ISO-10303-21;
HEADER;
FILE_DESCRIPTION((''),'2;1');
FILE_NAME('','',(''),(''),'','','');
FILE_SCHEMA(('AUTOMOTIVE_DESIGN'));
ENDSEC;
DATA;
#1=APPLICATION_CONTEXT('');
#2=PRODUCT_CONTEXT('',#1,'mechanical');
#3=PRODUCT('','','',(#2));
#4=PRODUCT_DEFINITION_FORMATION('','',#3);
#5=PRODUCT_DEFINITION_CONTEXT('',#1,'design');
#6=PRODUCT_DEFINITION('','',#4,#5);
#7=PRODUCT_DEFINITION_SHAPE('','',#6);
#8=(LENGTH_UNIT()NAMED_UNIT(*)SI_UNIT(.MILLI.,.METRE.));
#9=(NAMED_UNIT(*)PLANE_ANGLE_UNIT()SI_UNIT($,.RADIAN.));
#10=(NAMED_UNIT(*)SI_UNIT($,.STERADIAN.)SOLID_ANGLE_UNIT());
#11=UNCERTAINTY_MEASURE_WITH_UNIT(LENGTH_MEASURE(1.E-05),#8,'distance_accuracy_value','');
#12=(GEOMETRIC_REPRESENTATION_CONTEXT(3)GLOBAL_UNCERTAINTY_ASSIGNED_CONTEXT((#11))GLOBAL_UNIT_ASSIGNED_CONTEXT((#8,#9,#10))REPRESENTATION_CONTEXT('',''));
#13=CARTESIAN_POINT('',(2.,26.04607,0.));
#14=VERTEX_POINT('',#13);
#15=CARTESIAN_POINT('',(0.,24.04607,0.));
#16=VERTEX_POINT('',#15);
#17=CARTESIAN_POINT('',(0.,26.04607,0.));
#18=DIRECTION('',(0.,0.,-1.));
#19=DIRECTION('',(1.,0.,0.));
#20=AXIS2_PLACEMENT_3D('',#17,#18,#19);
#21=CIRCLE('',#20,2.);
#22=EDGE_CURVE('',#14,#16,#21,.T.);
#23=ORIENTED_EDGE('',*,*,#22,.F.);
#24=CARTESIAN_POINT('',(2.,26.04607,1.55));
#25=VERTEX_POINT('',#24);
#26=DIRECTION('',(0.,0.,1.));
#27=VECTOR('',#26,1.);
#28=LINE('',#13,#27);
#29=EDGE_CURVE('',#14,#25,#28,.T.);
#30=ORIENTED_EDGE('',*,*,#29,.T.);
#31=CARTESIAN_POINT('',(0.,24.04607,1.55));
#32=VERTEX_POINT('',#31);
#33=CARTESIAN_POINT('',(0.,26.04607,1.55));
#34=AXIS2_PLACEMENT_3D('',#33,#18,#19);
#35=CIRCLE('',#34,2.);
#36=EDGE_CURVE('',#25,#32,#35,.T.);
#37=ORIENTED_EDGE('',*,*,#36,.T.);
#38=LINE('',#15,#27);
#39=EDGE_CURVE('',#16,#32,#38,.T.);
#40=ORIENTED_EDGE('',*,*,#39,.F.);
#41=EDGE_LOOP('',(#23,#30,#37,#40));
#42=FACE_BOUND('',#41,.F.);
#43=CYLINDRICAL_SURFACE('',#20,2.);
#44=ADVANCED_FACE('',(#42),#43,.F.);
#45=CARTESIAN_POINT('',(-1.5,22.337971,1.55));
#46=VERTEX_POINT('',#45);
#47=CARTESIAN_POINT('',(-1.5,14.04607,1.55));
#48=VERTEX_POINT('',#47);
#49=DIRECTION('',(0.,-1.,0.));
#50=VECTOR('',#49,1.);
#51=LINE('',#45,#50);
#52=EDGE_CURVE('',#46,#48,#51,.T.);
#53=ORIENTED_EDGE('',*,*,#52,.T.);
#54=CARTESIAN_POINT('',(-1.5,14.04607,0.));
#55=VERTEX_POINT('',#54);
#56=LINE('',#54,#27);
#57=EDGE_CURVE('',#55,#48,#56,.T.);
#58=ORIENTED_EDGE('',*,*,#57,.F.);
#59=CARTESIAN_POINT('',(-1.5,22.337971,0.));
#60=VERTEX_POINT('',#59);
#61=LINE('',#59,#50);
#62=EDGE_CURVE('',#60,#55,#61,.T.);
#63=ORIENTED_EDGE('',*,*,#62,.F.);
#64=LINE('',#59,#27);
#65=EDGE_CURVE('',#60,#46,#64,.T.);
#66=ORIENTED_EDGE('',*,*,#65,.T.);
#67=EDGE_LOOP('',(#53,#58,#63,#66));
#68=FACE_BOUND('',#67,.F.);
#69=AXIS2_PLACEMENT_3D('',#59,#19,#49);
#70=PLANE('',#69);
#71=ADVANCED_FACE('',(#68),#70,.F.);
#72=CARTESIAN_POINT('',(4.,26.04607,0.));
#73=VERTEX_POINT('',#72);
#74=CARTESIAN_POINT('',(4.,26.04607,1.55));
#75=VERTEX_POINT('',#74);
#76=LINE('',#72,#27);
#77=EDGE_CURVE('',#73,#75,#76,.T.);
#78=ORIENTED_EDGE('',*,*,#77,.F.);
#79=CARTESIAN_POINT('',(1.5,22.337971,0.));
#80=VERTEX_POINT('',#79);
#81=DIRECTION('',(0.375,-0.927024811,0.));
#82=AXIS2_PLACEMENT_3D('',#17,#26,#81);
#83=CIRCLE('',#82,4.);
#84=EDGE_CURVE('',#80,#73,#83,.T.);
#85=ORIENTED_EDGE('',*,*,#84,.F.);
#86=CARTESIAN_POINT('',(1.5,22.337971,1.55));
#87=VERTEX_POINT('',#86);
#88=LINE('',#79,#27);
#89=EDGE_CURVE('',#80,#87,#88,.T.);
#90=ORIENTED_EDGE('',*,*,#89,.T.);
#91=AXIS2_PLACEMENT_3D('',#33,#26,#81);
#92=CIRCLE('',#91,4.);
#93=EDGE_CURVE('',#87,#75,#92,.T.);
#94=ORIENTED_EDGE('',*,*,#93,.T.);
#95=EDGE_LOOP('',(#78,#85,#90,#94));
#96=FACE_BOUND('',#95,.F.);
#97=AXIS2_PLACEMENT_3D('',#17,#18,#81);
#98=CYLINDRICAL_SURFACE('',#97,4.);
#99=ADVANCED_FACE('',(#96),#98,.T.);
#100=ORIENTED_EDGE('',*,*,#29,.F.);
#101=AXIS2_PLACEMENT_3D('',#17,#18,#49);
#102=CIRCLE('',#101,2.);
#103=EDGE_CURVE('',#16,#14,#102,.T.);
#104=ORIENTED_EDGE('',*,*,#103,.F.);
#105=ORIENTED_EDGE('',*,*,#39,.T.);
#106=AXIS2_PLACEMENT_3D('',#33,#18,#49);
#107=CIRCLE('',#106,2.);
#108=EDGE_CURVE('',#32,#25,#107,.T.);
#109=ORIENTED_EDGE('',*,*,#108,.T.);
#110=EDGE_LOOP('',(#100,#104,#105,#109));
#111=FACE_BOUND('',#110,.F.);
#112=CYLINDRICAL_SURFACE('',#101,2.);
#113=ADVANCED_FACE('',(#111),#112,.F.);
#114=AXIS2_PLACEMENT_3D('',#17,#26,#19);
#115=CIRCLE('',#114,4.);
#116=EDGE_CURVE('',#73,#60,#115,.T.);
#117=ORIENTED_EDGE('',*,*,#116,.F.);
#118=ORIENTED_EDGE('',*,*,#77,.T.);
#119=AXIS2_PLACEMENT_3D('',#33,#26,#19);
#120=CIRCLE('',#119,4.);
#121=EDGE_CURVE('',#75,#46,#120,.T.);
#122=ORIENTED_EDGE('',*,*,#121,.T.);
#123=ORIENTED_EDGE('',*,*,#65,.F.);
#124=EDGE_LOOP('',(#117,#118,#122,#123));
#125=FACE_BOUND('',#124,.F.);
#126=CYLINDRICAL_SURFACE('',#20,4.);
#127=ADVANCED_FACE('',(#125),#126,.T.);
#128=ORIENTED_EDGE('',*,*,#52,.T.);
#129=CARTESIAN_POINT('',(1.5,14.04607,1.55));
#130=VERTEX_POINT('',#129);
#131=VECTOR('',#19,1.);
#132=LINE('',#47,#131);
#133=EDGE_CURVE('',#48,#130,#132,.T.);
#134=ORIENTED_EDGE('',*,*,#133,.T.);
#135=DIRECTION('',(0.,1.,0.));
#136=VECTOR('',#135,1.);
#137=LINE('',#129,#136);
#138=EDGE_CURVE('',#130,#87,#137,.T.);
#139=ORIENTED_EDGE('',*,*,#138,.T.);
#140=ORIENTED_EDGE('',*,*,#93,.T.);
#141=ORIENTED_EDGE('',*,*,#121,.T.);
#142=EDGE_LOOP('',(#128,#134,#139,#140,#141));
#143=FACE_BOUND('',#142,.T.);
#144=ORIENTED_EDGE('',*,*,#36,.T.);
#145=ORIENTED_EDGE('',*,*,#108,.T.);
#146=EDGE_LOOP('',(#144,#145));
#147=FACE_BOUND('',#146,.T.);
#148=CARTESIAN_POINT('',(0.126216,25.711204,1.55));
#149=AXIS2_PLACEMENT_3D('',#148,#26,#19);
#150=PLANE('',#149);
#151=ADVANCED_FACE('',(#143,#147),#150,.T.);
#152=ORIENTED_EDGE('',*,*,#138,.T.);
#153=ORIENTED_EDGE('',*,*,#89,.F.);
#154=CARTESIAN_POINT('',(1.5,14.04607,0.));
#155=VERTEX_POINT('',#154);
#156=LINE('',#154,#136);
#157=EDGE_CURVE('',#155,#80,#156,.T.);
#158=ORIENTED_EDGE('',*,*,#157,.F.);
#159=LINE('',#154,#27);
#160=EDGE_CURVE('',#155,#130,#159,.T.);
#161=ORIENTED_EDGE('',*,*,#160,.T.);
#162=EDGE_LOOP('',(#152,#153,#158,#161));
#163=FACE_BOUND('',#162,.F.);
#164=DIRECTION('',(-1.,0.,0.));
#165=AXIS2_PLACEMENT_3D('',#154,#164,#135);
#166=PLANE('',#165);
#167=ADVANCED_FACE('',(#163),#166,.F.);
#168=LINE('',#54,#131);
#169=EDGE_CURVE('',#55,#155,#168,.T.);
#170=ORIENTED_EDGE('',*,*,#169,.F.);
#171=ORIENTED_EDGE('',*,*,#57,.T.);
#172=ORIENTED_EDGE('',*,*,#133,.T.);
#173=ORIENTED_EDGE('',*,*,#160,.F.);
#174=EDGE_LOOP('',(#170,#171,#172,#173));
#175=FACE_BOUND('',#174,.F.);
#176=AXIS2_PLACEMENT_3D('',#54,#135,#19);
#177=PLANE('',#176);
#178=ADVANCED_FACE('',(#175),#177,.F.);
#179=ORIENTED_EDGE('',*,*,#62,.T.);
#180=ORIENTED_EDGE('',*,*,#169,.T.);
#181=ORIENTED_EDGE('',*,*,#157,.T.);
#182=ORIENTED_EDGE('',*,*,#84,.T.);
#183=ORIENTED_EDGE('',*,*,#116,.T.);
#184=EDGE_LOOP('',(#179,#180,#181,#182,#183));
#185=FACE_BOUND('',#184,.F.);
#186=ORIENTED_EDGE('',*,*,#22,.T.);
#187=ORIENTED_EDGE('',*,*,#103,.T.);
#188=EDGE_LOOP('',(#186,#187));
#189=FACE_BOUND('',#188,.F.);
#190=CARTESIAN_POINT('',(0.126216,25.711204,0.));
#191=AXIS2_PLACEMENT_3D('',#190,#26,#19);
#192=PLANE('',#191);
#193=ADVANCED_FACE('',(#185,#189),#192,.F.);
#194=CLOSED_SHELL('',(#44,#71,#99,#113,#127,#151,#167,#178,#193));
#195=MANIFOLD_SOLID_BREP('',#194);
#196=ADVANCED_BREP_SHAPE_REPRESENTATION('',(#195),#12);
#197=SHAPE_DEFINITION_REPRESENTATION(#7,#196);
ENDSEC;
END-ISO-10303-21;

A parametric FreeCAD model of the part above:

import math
import FreeCAD as App
import Part
import Sketcher
from FreeCAD import Vector
Q = App.Units.Quantity

doc = App.newDocument("Part")
params = doc.addObject("Spreadsheet::Sheet", "Params")
for row, (alias, value) in enumerate([
    ("sketch1_radius", "4 mm"),
    ("sketch1_radius2", "2 mm"),
    ("sketch1_width", "3 mm"),
    ("pad1_length", "1.55 mm"),
], start=1):
    params.set(f"A{row}", alias)
    params.set(f"B{row}", "=" + value)
    params.setAlias(f"B{row}", alias)

body = doc.addObject("PartDesign::Body", "Body")

sketch1 = body.newObject("Sketcher::SketchObject", "Sketch")
sketch1.AttachmentSupport = (doc.getObject("XY_Plane"), [""])
sketch1.MapMode = "FlatFace"
sketch1.addGeometry(Part.ArcOfCircle(Part.Circle(Vector(0, 26, 0), Vector(0, 0, 1), 4), math.radians(0), math.radians(248)), False)
sketch1.addGeometry(Part.LineSegment(Vector(-1.5, 22.3, 0), Vector(-1.5, 14, 0)), False)
sketch1.addGeometry(Part.LineSegment(Vector(-1.5, 14, 0), Vector(1.5, 14, 0)), False)
sketch1.addGeometry(Part.LineSegment(Vector(1.5, 14, 0), Vector(1.5, 22.3, 0)), False)
sketch1.addGeometry(Part.ArcOfCircle(Part.Circle(Vector(0, 26, 0), Vector(0, 0, 1), 4), math.radians(-68), math.radians(0)), False)
sketch1.addGeometry(Part.ArcOfCircle(Part.Circle(Vector(0, 26, 0), Vector(0, 0, 1), 2), math.radians(-90), math.radians(0)), False)
sketch1.addGeometry(Part.ArcOfCircle(Part.Circle(Vector(0, 26, 0), Vector(0, 0, 1), 2), math.radians(0), math.radians(270)), False)
sketch1.addConstraint(Sketcher.Constraint("Coincident", 0, 2, 1, 1))
sketch1.addConstraint(Sketcher.Constraint("Coincident", 1, 2, 2, 1))
sketch1.addConstraint(Sketcher.Constraint("Coincident", 2, 2, 3, 1))
sketch1.addConstraint(Sketcher.Constraint("Coincident", 3, 2, 4, 1))
sketch1.addConstraint(Sketcher.Constraint("Tangent", 4, 2, 0, 1))
sketch1.addConstraint(Sketcher.Constraint("Tangent", 5, 1, 6, 2))
sketch1.addConstraint(Sketcher.Constraint("Coincident", 6, 1, 5, 2))
sketch1.addConstraint(Sketcher.Constraint("Vertical", 1))
sketch1.addConstraint(Sketcher.Constraint("Horizontal", 2))
sketch1.addConstraint(Sketcher.Constraint("Vertical", 3))
sketch1.addConstraint(Sketcher.Constraint("Coincident", 5, 3, 0, 3))
sketch1.addConstraint(Sketcher.Constraint("Equal", 0, 4))
sketch1.addConstraint(Sketcher.Constraint("Symmetric", 0, 2, 3, 2, -2))
sketch1.addConstraint(Sketcher.Constraint("PointOnObject", 5, 1, -2))
sketch1.addConstraint(Sketcher.Constraint("Horizontal", 6, 3, 4, 2))
sketch1.addConstraint(Sketcher.Constraint("Horizontal", 4, 2, 6, 1))
sketch1.addConstraint(Sketcher.Constraint("Radius", 0, Q("4 mm")))
sketch1.addConstraint(Sketcher.Constraint("Radius", 5, Q("2 mm")))
sketch1.addConstraint(Sketcher.Constraint("DistanceX", 2, 1, 2, 2, Q("3 mm")))
sketch1.addConstraint(Sketcher.Constraint("DistanceY", 1, 2, 0, 3, Q("12 mm")))
sketch1.addConstraint(Sketcher.Constraint("DistanceY", -1, 1, 0, 3, Q("26.04607 mm")))
sketch1.setExpression("Constraints[16]", "Params.sketch1_radius")
sketch1.setExpression("Constraints[17]", "Params.sketch1_radius2")
sketch1.setExpression("Constraints[18]", "Params.sketch1_width")
pad1 = body.newObject("PartDesign::Pad", "Pad")
pad1.Profile = sketch1
pad1.setExpression("Length", "Params.pad1_length")

doc.recompute()
